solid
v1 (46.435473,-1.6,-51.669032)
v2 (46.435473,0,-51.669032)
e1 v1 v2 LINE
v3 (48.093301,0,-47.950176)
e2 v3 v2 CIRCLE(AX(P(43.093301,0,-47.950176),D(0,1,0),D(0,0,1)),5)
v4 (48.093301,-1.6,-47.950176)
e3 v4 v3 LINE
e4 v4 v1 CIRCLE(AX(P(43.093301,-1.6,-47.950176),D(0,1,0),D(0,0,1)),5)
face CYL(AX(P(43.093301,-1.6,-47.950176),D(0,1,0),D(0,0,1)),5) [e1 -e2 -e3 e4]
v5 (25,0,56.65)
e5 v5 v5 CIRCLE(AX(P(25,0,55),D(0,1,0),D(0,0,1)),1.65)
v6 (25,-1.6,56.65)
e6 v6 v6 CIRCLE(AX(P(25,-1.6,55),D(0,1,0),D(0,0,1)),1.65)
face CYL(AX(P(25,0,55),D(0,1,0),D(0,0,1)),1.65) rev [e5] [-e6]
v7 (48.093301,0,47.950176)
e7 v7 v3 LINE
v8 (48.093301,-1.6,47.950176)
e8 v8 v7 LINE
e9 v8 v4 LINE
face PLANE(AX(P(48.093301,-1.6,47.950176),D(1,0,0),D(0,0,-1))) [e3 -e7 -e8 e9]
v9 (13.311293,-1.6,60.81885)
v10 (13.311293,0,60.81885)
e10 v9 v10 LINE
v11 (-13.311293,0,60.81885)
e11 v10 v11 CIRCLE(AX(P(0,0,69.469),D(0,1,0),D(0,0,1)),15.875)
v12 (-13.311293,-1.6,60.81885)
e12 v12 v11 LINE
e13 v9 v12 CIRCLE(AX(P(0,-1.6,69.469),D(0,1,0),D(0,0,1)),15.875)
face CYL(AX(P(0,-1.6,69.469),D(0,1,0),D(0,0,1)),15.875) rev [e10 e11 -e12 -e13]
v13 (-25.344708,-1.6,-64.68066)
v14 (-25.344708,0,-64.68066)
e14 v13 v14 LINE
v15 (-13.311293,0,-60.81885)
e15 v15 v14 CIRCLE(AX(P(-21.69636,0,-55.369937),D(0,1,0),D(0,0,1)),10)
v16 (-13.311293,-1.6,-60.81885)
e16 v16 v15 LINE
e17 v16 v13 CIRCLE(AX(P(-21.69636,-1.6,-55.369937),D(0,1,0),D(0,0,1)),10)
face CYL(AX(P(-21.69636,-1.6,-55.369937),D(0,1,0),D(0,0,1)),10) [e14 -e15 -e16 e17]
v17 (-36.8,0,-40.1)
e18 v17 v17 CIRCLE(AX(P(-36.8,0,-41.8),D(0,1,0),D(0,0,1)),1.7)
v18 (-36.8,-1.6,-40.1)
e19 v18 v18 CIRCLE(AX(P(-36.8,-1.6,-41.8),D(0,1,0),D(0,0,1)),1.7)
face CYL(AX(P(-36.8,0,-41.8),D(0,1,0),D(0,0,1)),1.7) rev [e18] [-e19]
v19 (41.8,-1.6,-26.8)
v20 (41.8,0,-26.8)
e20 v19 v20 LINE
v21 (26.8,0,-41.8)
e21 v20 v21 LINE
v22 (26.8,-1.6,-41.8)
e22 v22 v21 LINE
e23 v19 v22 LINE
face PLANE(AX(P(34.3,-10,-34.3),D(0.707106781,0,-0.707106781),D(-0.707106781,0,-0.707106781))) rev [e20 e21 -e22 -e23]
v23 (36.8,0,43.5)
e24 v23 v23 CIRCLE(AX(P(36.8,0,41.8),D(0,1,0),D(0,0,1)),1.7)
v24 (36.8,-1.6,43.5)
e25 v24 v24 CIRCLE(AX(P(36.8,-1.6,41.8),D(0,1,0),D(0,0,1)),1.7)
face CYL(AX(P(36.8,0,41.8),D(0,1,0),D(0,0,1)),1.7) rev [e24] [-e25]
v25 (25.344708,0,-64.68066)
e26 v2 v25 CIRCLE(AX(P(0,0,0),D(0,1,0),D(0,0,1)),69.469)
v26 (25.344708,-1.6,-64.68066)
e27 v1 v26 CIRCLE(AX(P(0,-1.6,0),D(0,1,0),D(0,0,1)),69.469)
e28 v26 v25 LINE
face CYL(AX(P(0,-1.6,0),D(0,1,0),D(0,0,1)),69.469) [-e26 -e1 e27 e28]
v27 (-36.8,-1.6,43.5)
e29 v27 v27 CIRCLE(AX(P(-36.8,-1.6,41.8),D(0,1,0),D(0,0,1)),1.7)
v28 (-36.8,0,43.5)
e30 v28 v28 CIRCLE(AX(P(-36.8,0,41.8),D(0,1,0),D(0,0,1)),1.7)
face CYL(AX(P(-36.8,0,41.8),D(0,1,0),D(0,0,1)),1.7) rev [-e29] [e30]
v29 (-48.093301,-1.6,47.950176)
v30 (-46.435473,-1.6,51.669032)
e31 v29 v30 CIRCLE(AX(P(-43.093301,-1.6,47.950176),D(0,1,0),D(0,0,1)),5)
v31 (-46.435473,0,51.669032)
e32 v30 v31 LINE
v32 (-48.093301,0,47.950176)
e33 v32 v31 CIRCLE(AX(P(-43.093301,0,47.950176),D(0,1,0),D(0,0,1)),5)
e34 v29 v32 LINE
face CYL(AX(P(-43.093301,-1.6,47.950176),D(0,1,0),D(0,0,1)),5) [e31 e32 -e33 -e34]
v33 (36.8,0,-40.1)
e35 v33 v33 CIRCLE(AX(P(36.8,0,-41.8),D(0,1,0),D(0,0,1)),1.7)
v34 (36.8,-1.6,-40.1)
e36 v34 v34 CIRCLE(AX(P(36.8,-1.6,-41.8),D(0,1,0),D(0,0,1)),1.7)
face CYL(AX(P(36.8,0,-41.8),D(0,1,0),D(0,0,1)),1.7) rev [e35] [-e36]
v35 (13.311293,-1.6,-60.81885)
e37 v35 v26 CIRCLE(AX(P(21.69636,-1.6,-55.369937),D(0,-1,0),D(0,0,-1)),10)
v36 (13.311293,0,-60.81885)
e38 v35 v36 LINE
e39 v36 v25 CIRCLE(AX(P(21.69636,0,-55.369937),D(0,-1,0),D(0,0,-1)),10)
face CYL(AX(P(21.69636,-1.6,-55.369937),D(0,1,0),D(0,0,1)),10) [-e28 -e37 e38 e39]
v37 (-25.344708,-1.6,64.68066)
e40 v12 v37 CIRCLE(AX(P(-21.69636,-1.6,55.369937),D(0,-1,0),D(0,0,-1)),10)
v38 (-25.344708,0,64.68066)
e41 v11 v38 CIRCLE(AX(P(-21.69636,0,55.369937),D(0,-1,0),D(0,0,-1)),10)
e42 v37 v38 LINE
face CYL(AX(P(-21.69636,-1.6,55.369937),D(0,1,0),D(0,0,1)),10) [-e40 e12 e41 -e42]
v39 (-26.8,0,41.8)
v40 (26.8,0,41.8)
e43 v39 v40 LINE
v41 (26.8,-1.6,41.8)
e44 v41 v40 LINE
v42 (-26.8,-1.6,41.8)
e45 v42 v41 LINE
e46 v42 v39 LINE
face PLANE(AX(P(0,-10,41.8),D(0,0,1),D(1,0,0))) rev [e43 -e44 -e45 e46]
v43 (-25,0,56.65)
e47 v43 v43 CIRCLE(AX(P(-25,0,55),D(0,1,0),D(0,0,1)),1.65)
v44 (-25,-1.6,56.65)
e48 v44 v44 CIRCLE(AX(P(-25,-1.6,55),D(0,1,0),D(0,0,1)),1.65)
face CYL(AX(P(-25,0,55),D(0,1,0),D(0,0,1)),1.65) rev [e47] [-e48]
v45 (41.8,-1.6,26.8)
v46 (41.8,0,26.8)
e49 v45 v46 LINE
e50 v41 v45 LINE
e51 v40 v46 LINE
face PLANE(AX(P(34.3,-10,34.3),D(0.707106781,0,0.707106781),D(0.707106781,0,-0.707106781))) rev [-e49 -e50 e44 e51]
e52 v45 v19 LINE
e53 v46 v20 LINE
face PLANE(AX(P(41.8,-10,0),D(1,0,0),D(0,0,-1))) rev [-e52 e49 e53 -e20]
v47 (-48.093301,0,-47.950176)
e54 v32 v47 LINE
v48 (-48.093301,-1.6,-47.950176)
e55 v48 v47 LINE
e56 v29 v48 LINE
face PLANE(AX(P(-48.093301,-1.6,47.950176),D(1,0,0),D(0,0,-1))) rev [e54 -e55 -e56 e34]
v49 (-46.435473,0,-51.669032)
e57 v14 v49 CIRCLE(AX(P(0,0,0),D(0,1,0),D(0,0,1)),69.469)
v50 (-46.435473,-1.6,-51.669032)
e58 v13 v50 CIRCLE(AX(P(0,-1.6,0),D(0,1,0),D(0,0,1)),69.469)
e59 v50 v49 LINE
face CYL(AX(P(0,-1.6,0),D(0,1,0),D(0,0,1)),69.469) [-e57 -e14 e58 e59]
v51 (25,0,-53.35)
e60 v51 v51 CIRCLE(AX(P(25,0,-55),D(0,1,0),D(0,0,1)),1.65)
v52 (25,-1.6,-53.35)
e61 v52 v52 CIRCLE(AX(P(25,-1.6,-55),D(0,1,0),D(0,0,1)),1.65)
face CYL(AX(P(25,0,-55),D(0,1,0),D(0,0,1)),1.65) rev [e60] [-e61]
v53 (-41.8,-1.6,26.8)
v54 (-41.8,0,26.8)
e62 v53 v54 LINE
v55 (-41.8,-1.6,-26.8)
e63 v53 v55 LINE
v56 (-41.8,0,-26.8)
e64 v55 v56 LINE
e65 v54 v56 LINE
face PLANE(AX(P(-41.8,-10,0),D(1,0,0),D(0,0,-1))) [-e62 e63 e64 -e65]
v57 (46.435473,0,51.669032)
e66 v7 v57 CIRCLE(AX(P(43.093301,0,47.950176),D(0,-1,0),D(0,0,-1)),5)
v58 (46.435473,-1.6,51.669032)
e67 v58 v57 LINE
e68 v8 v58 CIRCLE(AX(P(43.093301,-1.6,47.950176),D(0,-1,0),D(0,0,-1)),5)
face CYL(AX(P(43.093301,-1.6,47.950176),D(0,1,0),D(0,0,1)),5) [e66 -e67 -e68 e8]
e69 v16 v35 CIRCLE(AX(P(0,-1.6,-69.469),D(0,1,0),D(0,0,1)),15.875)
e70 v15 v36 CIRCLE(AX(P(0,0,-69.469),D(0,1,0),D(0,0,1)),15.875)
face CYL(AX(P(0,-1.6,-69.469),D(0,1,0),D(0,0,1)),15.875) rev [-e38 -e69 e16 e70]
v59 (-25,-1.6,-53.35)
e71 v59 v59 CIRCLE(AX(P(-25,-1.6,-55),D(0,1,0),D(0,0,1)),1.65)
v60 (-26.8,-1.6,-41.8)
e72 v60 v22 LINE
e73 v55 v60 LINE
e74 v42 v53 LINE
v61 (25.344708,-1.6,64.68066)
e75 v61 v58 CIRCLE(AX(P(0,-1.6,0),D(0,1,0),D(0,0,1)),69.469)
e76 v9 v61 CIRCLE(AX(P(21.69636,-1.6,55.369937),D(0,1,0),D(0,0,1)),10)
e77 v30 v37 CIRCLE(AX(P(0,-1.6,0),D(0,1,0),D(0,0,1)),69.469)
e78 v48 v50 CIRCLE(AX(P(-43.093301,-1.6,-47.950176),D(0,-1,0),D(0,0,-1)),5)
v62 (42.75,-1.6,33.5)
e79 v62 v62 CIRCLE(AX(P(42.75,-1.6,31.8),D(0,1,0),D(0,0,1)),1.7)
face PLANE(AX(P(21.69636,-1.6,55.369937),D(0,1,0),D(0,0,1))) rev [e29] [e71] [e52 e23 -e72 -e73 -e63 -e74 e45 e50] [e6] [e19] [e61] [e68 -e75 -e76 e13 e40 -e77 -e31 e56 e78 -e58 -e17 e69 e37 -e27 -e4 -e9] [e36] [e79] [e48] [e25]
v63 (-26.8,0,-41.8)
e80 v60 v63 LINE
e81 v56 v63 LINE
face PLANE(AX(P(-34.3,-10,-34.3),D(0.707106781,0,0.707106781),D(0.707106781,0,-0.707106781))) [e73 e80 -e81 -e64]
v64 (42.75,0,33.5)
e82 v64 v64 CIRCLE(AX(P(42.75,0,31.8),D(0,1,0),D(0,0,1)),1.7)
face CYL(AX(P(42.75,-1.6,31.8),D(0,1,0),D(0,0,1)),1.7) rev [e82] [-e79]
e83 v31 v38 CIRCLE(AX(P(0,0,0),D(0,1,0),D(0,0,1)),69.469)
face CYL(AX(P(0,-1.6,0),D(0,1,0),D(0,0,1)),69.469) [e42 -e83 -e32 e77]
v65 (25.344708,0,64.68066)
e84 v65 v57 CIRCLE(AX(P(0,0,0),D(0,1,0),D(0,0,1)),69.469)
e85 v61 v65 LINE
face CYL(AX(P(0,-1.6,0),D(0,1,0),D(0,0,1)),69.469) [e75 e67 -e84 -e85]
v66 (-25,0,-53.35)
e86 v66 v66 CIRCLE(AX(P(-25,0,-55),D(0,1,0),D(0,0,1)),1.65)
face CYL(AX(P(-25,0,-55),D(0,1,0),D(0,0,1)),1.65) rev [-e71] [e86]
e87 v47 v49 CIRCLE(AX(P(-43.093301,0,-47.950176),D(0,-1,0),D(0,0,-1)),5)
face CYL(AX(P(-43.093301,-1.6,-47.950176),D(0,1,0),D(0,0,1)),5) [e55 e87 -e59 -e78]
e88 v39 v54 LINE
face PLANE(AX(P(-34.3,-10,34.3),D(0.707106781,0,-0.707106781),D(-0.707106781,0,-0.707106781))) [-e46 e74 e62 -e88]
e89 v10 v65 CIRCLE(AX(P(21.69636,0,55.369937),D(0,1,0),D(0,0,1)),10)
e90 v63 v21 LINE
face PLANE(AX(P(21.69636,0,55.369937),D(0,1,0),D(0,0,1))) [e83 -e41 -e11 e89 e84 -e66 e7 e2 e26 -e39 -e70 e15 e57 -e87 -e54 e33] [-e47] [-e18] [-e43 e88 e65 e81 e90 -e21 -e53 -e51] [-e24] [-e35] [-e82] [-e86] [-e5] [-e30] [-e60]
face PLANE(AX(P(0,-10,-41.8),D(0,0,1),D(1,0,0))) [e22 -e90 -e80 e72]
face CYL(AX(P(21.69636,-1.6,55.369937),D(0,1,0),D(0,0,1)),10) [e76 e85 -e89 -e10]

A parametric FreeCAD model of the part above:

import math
import FreeCAD as App
import Part
import Sketcher
from FreeCAD import Vector
Q = App.Units.Quantity


def add_polygon(sketch, points):
    """Adds a closed chain of lines whose ends are joined by coincident constraints."""
    first, n = sketch.GeometryCount, len(points)
    for a, b in zip(points, points[1:] + points[:1]):
        sketch.addGeometry(Part.LineSegment(App.Vector(*a, 0), App.Vector(*b, 0)), False)
    for i in range(n):
        sketch.addConstraint(Sketcher.Constraint("Coincident", first + i, 2, first + (i + 1) % n, 1))

doc = App.newDocument("Part")
body = doc.addObject("PartDesign::Body", "Body")

# Sketch on XZ plane
sketch1 = body.newObject("Sketcher::SketchObject", "Sketch")
sketch1.AttachmentSupport = (doc.getObject("XZ_Plane"), [""])
sketch1.MapMode = "FlatFace"
sketch1.addGeometry(Part.LineSegment(Vector(-48.1, -48, 0), Vector(-48.1, 48, 0)), False)
sketch1.addGeometry(Part.ArcOfCircle(Part.Circle(Vector(-43.1, 48, 0), Vector(0, 0, 1), 5), math.radians(132), math.radians(180)), False)
sketch1.addGeometry(Part.ArcOfCircle(Part.Circle(Vector(0, 0, 0), Vector(0, 0, 1), 69.5), math.radians(111), math.radians(132)), False)
sketch1.addGeometry(Part.ArcOfCircle(Part.Circle(Vector(-21.7, 55.4, 0), Vector(0, 0, 1), 10), math.radians(33), math.radians(111)), False)
sketch1.addGeometry(Part.ArcOfCircle(Part.Circle(Vector(0, 69.5, 0), Vector(0, 0, 1), 15.9), math.radians(-147), math.radians(-33)), False)
sketch1.addGeometry(Part.ArcOfCircle(Part.Circle(Vector(21.7, 55.4, 0), Vector(0, 0, 1), 10), math.radians(69), math.radians(147)), False)
sketch1.addGeometry(Part.ArcOfCircle(Part.Circle(Vector(0, 0, 0), Vector(0, 0, 1), 69.5), math.radians(48), math.radians(69)), False)
sketch1.addGeometry(Part.ArcOfCircle(Part.Circle(Vector(43.1, 48, 0), Vector(0, 0, 1), 5), math.radians(0), math.radians(48)), False)
sketch1.addGeometry(Part.LineSegment(Vector(48.1, 48, 0), Vector(48.1, -48, 0)), False)
sketch1.addGeometry(Part.ArcOfCircle(Part.Circle(Vector(43.1, -48, 0), Vector(0, 0, 1), 5), math.radians(-48), math.radians(0)), False)
sketch1.addGeometry(Part.ArcOfCircle(Part.Circle(Vector(0, 0, 0), Vector(0, 0, 1), 69.5), math.radians(-69), math.radians(-48)), False)
sketch1.addGeometry(Part.ArcOfCircle(Part.Circle(Vector(21.7, -55.4, 0), Vector(0, 0, 1), 10), math.radians(-147), math.radians(-69)), False)
sketch1.addGeometry(Part.ArcOfCircle(Part.Circle(Vector(0, -69.5, 0), Vector(0, 0, 1), 15.9), math.radians(33), math.radians(147)), False)
sketch1.addGeometry(Part.ArcOfCircle(Part.Circle(Vector(-21.7, -55.4, 0), Vector(0, 0, 1), 10), math.radians(-111), math.radians(-33)), False)
sketch1.addGeometry(Part.ArcOfCircle(Part.Circle(Vector(0, 0, 0), Vector(0, 0, 1), 69.5), math.radians(-132), math.radians(-111)), False)
sketch1.addGeometry(Part.ArcOfCircle(Part.Circle(Vector(-43.1, -48, 0), Vector(0, 0, 1), 5), math.radians(-180), math.radians(-132)), False)
sketch1.addConstraint(Sketcher.Constraint("Tangent", 0, 2, 1, 2))
sketch1.addConstraint(Sketcher.Constraint("Tangent", 1, 1, 2, 2))
sketch1.addConstraint(Sketcher.Constraint("Tangent", 2, 1, 3, 2))
sketch1.addConstraint(Sketcher.Constraint("Tangent", 3, 1, 4, 1))
sketch1.addConstraint(Sketcher.Constraint("Tangent", 4, 2, 5, 2))
sketch1.addConstraint(Sketcher.Constraint("Tangent", 5, 1, 6, 2))
sketch1.addConstraint(Sketcher.Constraint("Tangent", 6, 1, 7, 2))
sketch1.addConstraint(Sketcher.Constraint("Tangent", 7, 1, 8, 1))
sketch1.addConstraint(Sketcher.Constraint("Tangent", 8, 2, 9, 2))
sketch1.addConstraint(Sketcher.Constraint("Tangent", 9, 1, 10, 2))
sketch1.addConstraint(Sketcher.Constraint("Tangent", 10, 1, 11, 2))
sketch1.addConstraint(Sketcher.Constraint("Tangent", 11, 1, 12, 1))
sketch1.addConstraint(Sketcher.Constraint("Tangent", 12, 2, 13, 2))
sketch1.addConstraint(Sketcher.Constraint("Tangent", 13, 1, 14, 2))
sketch1.addConstraint(Sketcher.Constraint("Tangent", 14, 1, 15, 2))
sketch1.addConstraint(Sketcher.Constraint("Tangent", 15, 1, 0, 1))
sketch1.addConstraint(Sketcher.Constraint("Vertical", 0))
sketch1.addConstraint(Sketcher.Constraint("Vertical", 8))
sketch1.addConstraint(Sketcher.Constraint("Coincident", 2, 3, -1, 1))
sketch1.addConstraint(Sketcher.Constraint("Coincident", 6, 3, -1, 1))
sketch1.addConstraint(Sketcher.Constraint("Coincident", 10, 3, -1, 1))
sketch1.addConstraint(Sketcher.Constraint("Coincident", 14, 3, -1, 1))
sketch1.addConstraint(Sketcher.Constraint("Equal", 3, 5))
sketch1.addConstraint(Sketcher.Constraint("Equal", 2, 6))
sketch1.addConstraint(Sketcher.Constraint("Equal", 1, 7))
sketch1.addConstraint(Sketcher.Constraint("Equal", 7, 9))
sketch1.addConstraint(Sketcher.Constraint("Equal", 6, 10))
sketch1.addConstraint(Sketcher.Constraint("Equal", 5, 11))
sketch1.addConstraint(Sketcher.Constraint("Equal", 4, 12))
sketch1.addConstraint(Sketcher.Constraint("Equal", 11, 13))
sketch1.addConstraint(Sketcher.Constraint("Equal", 10, 14))
sketch1.addConstraint(Sketcher.Constraint("Equal", 9, 15))
sketch1.addConstraint(Sketcher.Constraint("Symmetric", 4, 3, 12, 3, -1, 1))
sketch1.addConstraint(Sketcher.Constraint("PointOnObject", 4, 3, -2))
sketch1.addConstraint(Sketcher.Constraint("Horizontal", 1, 3, 7, 3))
sketch1.addConstraint(Sketcher.Constraint("Radius", 1, Q("5 mm")))
sketch1.addConstraint(Sketcher.Constraint("Radius", 3, Q("10 mm")))
sketch1.addConstraint(Sketcher.Constraint("Radius", 2, Q("69.469 mm")))
sketch1.addConstraint(Sketcher.Constraint("Radius", 4, Q("15.875 mm")))
sketch1.addConstraint(Sketcher.Constraint("DistanceY", -1, 1, 4, 3, Q("69.469 mm")))
sketch1.addConstraint(Sketcher.Constraint("DistanceX", 1, 3, -1, 1, Q("43.093301 mm")))
pad1 = body.newObject("PartDesign::Pad", "Pad")
pad1.Profile = sketch1
pad1.Length = 1.6

# Sketch on XZ plane
sketch2 = body.newObject("Sketcher::SketchObject", "Sketch001")
sketch2.AttachmentSupport = (doc.getObject("XZ_Plane"), [""])
sketch2.MapMode = "FlatFace"
sketch2.addGeometry(Part.Circle(Vector(-36.8, -41.8, 0), Vector(0, 0, 1), 1.7), False)
sketch2.addGeometry(Part.Circle(Vector(-36.8, 41.8, 0), Vector(0, 0, 1), 1.7), False)
sketch2.addGeometry(Part.Circle(Vector(36.8, 41.8, 0), Vector(0, 0, 1), 1.7), False)
sketch2.addGeometry(Part.Circle(Vector(36.8, -41.8, 0), Vector(0, 0, 1), 1.7), False)
sketch2.addConstraint(Sketcher.Constraint("Equal", 0, 1))
sketch2.addConstraint(Sketcher.Constraint("Equal", 1, 2))
sketch2.addConstraint(Sketcher.Constraint("Equal", 2, 3))
sketch2.addConstraint(Sketcher.Constraint("Symmetric", 0, 3, 2, 3, -1, 1))
sketch2.addConstraint(Sketcher.Constraint("Symmetric", 1, 3, 3, 3, -1, 1))
sketch2.addConstraint(Sketcher.Constraint("Symmetric", 1, 3, 2, 3, -2))
sketch2.addConstraint(Sketcher.Constraint("Diameter", 0, Q("3.4 mm")))
sketch2.addConstraint(Sketcher.Constraint("DistanceX", 0, 3, -1, 1, Q("36.8 mm")))
sketch2.addConstraint(Sketcher.Constraint("DistanceY", 0, 3, -1, 1, Q("41.8 mm")))
doc.recompute()
hole = body.newObject("PartDesign::Hole", "Hole")
hole.Profile = sketch2
hole.ThreadType = "None"
hole.Diameter = 3.4
hole.DepthType = "ThroughAll"
hole.Reversed = True

# Sketch on XZ plane
sketch3 = body.newObject("Sketcher::SketchObject", "Sketch002")
sketch3.AttachmentSupport = (doc.getObject("XZ_Plane"), [""])
sketch3.MapMode = "FlatFace"
sketch3.addGeometry(Part.Circle(Vector(-25, -55, 0), Vector(0, 0, 1), 1.6), False)
sketch3.addGeometry(Part.Circle(Vector(25, -55, 0), Vector(0, 0, 1), 1.6), False)
sketch3.addGeometry(Part.Circle(Vector(25, 55, 0), Vector(0, 0, 1), 1.6), False)
sketch3.addGeometry(Part.Circle(Vector(-25, 55, 0), Vector(0, 0, 1), 1.6), False)
sketch3.addConstraint(Sketcher.Constraint("Equal", 0, 1))
sketch3.addConstraint(Sketcher.Constraint("Equal", 1, 2))
sketch3.addConstraint(Sketcher.Constraint("Equal", 2, 3))
sketch3.addConstraint(Sketcher.Constraint("Symmetric", 0, 3, 2, 3, -1, 1))
sketch3.addConstraint(Sketcher.Constraint("Symmetric", 1, 3, 3, 3, -1, 1))
sketch3.addConstraint(Sketcher.Constraint("Symmetric", 0, 3, 1, 3, -2))
sketch3.addConstraint(Sketcher.Constraint("Diameter", 0, Q("3.3 mm")))
sketch3.addConstraint(Sketcher.Constraint("DistanceX", 0, 3, -1, 1, Q("25 mm")))
sketch3.addConstraint(Sketcher.Constraint("DistanceY", 0, 3, -1, 1, Q("55 mm")))
doc.recompute()
hole2 = body.newObject("PartDesign::Hole", "Hole001")
hole2.Profile = sketch3
hole2.ThreadType = "None"
hole2.Diameter = 3.3
hole2.DepthType = "ThroughAll"
hole2.Reversed = True

# Sketch on XZ plane
sketch4 = body.newObject("Sketcher::SketchObject", "Sketch003")
sketch4.AttachmentSupport = (doc.getObject("XZ_Plane"), [""])
sketch4.MapMode = "FlatFace"
sketch4.addGeometry(Part.Circle(Vector(42.8, 31.8, 0), Vector(0, 0, 1), 1.7), False)
sketch4.addConstraint(Sketcher.Constraint("Diameter", 0, Q("3.4 mm")))
sketch4.addConstraint(Sketcher.Constraint("DistanceY", -1, 1, 0, 3, Q("31.8 mm")))
sketch4.addConstraint(Sketcher.Constraint("DistanceX", -1, 1, 0, 3, Q("42.75 mm")))
pocket1 = body.newObject("PartDesign::Pocket", "Pocket")
pocket1.Profile = sketch4
pocket1.Type = "ThroughAll"
pocket1.Reversed = True

# Sketch on XZ plane
sketch5 = body.newObject("Sketcher::SketchObject", "Sketch004")
sketch5.AttachmentSupport = (doc.getObject("XZ_Plane"), [""])
sketch5.MapMode = "FlatFace"
add_polygon(sketch5, [(-42, 27), (-27, 42), (27, 42), (42, 27), (42, -27), (27, -42), (-27, -42), (-42, -27)])  # lines 0-7
sketch5.addConstraint(Sketcher.Constraint("Horizontal", 1))
sketch5.addConstraint(Sketcher.Constraint("Vertical", 3))
sketch5.addConstraint(Sketcher.Constraint("Horizontal", 5))
sketch5.addConstraint(Sketcher.Constraint("Vertical", 7))
sketch5.addConstraint(Sketcher.Constraint("Symmetric", 0, 2, 4, 2, -1, 1))
sketch5.addConstraint(Sketcher.Constraint("Symmetric", 2, 2, 6, 2, -1, 1))
sketch5.addConstraint(Sketcher.Constraint("Perpendicular", 0, 2))
sketch5.addConstraint(Sketcher.Constraint("Perpendicular", 2, 4))
sketch5.addConstraint(Sketcher.Constraint("Perpendicular", 4, 6))
sketch5.addConstraint(Sketcher.Constraint("Horizontal", 3, 2, 6, 2))
sketch5.addConstraint(Sketcher.Constraint("Vertical", 1, 2, 4, 2))
sketch5.addConstraint(Sketcher.Constraint("Equal", 5, 3))
sketch5.addConstraint(Sketcher.Constraint("DistanceX", 1, 1, 1, 2, Q("53.6 mm")))
sketch5.addConstraint(Sketcher.Constraint("DistanceX", 1, 2, 2, 2, Q("15 mm")))
pocket2 = body.newObject("PartDesign::Pocket", "Pocket001")
pocket2.Profile = sketch5
pocket2.Length = 10
pocket2.Reversed = True

doc.recompute()
